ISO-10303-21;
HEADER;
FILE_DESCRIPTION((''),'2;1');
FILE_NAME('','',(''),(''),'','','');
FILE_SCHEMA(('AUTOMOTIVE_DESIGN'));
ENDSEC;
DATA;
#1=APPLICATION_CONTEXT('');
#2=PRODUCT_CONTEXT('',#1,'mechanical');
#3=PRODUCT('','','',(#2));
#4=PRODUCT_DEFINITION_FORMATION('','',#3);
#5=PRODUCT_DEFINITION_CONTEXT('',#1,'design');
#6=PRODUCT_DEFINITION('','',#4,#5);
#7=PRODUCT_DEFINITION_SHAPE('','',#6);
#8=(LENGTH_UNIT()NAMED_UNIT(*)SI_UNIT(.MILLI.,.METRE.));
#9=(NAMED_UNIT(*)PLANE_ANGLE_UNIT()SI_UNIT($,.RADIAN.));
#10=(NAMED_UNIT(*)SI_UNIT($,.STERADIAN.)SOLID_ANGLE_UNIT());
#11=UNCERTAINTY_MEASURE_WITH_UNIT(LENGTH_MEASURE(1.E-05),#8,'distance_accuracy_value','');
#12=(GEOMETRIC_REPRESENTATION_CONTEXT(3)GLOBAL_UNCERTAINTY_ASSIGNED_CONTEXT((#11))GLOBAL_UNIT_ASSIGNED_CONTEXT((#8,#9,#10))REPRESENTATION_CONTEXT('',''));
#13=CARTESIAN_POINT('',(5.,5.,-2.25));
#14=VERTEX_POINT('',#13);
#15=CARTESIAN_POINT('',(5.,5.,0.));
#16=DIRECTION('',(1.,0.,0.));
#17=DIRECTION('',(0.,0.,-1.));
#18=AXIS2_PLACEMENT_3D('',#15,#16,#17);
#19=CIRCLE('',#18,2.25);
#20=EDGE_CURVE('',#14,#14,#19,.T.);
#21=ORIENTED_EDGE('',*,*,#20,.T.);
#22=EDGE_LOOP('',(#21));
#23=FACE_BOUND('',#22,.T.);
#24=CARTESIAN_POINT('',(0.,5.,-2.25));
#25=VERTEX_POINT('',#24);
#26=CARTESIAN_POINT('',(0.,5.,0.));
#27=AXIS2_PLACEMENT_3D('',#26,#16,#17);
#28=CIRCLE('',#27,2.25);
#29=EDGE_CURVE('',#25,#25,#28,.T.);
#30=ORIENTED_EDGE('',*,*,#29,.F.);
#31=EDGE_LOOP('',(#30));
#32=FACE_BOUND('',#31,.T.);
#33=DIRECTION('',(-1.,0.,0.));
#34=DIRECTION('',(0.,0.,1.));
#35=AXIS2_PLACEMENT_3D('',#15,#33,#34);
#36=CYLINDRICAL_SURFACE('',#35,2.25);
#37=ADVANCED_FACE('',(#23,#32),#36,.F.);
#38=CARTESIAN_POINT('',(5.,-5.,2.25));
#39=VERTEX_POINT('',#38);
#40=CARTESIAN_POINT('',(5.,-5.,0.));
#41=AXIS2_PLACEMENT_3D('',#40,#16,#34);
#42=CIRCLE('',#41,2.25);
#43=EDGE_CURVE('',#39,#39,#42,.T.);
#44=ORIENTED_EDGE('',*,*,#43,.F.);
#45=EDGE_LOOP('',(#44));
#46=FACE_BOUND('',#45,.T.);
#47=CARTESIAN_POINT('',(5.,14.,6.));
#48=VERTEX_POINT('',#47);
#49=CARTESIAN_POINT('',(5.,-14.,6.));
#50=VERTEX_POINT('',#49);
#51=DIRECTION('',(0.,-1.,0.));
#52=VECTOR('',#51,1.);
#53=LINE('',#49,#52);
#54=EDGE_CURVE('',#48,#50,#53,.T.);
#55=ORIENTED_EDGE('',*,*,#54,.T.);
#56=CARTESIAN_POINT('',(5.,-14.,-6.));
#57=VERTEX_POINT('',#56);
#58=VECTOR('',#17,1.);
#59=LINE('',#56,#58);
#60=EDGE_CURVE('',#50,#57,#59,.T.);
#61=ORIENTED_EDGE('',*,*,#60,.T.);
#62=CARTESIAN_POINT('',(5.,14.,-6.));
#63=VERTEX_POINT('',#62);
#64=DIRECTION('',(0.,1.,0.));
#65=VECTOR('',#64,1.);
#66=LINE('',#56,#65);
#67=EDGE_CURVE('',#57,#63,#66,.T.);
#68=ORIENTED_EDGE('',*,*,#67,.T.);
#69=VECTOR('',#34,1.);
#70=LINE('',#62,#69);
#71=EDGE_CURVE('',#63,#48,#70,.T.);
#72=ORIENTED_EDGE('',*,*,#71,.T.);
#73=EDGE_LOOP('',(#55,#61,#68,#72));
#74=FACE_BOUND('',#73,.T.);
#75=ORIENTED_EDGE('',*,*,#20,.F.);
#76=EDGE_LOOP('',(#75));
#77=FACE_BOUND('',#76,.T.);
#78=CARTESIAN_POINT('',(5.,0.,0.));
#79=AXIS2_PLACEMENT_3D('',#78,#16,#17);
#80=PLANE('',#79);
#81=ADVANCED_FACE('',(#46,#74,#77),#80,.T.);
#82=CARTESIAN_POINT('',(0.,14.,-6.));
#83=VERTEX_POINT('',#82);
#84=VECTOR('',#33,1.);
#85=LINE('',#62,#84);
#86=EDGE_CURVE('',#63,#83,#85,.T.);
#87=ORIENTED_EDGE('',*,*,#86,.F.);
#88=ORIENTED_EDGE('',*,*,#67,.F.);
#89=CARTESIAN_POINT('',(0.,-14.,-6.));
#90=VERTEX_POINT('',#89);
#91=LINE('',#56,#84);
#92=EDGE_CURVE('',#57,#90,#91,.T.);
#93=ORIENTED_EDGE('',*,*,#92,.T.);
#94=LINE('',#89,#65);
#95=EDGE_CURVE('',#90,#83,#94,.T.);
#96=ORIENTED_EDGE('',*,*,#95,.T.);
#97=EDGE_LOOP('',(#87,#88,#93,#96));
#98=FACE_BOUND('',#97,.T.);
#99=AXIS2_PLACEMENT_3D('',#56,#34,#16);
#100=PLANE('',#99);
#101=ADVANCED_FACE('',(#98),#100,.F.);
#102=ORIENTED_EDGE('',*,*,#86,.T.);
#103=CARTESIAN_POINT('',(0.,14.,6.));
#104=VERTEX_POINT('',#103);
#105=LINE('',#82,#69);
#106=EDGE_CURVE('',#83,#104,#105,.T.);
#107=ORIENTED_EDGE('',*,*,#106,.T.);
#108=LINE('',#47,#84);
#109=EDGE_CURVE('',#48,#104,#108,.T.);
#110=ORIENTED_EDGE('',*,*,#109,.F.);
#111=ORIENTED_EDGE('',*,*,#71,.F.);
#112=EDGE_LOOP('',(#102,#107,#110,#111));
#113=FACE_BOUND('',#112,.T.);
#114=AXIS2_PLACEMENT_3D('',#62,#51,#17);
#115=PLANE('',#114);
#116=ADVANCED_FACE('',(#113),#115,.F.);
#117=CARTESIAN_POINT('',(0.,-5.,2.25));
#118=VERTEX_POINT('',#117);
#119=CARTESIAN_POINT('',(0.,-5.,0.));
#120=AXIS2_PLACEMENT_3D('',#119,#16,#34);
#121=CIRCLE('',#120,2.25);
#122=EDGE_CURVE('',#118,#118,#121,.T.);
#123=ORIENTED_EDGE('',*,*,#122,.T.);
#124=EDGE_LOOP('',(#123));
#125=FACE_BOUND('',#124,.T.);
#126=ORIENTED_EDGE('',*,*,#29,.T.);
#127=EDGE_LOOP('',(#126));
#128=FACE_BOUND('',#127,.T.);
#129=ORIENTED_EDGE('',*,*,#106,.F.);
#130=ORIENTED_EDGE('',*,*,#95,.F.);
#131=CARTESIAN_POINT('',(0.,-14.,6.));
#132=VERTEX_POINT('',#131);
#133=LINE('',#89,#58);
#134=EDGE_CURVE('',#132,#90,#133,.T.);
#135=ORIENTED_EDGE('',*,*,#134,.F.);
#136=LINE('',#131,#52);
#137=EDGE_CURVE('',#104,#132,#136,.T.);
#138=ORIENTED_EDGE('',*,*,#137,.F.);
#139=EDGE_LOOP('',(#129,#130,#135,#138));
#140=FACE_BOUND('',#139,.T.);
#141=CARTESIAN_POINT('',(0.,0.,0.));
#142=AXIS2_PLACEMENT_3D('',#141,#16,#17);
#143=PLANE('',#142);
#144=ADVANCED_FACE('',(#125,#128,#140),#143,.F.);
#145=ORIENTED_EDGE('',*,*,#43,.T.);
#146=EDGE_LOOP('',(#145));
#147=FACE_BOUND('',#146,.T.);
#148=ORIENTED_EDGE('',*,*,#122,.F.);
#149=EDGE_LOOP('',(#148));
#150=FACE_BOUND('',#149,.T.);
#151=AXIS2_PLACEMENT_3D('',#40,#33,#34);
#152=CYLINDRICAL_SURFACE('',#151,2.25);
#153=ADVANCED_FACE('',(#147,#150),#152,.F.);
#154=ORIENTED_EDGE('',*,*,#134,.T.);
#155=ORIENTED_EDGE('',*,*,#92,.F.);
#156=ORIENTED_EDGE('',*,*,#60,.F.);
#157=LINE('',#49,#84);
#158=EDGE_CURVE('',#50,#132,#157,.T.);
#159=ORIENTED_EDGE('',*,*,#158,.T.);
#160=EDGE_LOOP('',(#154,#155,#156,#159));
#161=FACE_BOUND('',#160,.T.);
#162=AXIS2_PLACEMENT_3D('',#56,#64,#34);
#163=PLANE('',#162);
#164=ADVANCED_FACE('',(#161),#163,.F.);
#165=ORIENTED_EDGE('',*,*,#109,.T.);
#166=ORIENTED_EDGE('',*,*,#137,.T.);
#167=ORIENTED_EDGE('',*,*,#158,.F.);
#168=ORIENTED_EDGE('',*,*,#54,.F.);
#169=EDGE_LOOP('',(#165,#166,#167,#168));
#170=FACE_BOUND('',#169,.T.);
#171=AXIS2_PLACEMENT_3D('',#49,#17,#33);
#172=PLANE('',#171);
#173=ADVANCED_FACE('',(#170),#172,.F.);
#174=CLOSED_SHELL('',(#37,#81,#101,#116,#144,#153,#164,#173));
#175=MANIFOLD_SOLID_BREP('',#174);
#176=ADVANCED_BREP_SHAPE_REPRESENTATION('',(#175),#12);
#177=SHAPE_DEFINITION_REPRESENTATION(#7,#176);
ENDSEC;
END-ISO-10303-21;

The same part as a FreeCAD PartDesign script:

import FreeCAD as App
import Part
import Sketcher
Q = App.Units.Quantity

doc = App.newDocument("Part")
body = doc.addObject("PartDesign::Body", "Body")

# Sketch on YZ plane
sketch1 = doc.addObject("Sketcher::SketchObject", "Sketch")
body.addObject(sketch1)
sketch1.AttachmentSupport = (doc.YZ_Plane, [""])
sketch1.MapMode = "FlatFace"
sketch1.addGeometry(Part.LineSegment(App.Vector(14, 6, 0), App.Vector(-14, 6, 0)), False)
sketch1.addGeometry(Part.LineSegment(App.Vector(-14, 6, 0), App.Vector(-14, -6, 0)), False)
sketch1.addGeometry(Part.LineSegment(App.Vector(-14, -6, 0), App.Vector(14, -6, 0)), False)
sketch1.addGeometry(Part.LineSegment(App.Vector(14, -6, 0), App.Vector(14, 6, 0)), False)
sketch1.addGeometry(Part.Circle(App.Vector(-5, 0, 0), App.Vector(0, 0, 1), 2.25), False)
sketch1.addGeometry(Part.Circle(App.Vector(5, 0, 0), App.Vector(0, 0, 1), 2.25), False)
sketch1.addConstraint(Sketcher.Constraint("Coincident", 0, 2, 1, 1))
sketch1.addConstraint(Sketcher.Constraint("Coincident", 1, 2, 2, 1))
sketch1.addConstraint(Sketcher.Constraint("Coincident", 2, 2, 3, 1))
sketch1.addConstraint(Sketcher.Constraint("Coincident", 3, 2, 0, 1))
sketch1.addConstraint(Sketcher.Constraint("Horizontal", 0))
sketch1.addConstraint(Sketcher.Constraint("Vertical", 1))
sketch1.addConstraint(Sketcher.Constraint("Horizontal", 2))
sketch1.addConstraint(Sketcher.Constraint("Vertical", 3))
sketch1.addConstraint(Sketcher.Constraint("Equal", 4, 5))
sketch1.addConstraint(Sketcher.Constraint("Symmetric", 4, 3, 5, 3, -1, 1))
sketch1.addConstraint(Sketcher.Constraint("Symmetric", 0, 2, 2, 2, -1, 1))
sketch1.addConstraint(Sketcher.Constraint("PointOnObject", 4, 3, -1))
sketch1.addConstraint(Sketcher.Constraint("Diameter", 4, Q("4.5 mm")))
sketch1.addConstraint(Sketcher.Constraint("DistanceX", 0, 2, 0, 1, Q("28 mm")))
sketch1.addConstraint(Sketcher.Constraint("DistanceY", 1, 2, 1, 1, Q("12 mm")))
sketch1.addConstraint(Sketcher.Constraint("DistanceX", 4, 3, -1, 1, Q("5 mm")))
pad1 = doc.addObject("PartDesign::Pad", "Pad")
body.addObject(pad1)
pad1.Profile = sketch1
pad1.Length = 5

doc.recompute()
